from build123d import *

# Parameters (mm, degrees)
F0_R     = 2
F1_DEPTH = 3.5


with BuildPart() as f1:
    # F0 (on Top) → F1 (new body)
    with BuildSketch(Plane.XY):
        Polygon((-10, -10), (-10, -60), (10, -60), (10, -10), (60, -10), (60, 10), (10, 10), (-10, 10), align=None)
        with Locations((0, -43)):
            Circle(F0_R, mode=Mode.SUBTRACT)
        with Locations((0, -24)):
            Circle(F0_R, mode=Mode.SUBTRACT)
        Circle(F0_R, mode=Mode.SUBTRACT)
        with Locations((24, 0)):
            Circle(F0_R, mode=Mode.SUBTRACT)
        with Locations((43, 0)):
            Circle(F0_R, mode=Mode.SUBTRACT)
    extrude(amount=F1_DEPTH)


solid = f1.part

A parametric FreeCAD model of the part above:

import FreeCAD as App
import Part
import Sketcher

V = App.Vector
Q = App.Units.Quantity

doc = App.newDocument("Part")
body = doc.addObject("PartDesign::Body", "Body")

# Sketch on XY plane
sketch1 = doc.addObject("Sketcher::SketchObject", "Sketch")
body.addObject(sketch1)
sketch1.AttachmentSupport = (doc.XY_Plane, [""])
sketch1.MapMode = "FlatFace"
sketch1.addGeometry(Part.LineSegment(V(-10, -60, 0), V(10, -60, 0)), False)
sketch1.addGeometry(Part.LineSegment(V(10, -60, 0), V(10, -10, 0)), False)
sketch1.addGeometry(Part.LineSegment(V(10, -10, 0), V(60, -10, 0)), False)
sketch1.addGeometry(Part.LineSegment(V(60, -10, 0), V(60, 10, 0)), False)
sketch1.addGeometry(Part.LineSegment(V(60, 10, 0), V(-10, 10, 0)), False)
sketch1.addGeometry(Part.LineSegment(V(-10, 10, 0), V(-10, -60, 0)), False)
sketch1.addGeometry(Part.Circle(V(0, -43, 0), V(0, 0, 1), 2), False)
sketch1.addGeometry(Part.Circle(V(0, -24, 0), V(0, 0, 1), 2), False)
sketch1.addGeometry(Part.Circle(V(0, 0, 0), V(0, 0, 1), 2), False)
sketch1.addGeometry(Part.Circle(V(24, 0, 0), V(0, 0, 1), 2), False)
sketch1.addGeometry(Part.Circle(V(43, 0, 0), V(0, 0, 1), 2), False)
sketch1.addConstraint(Sketcher.Constraint("Coincident", 0, 2, 1, 1))
sketch1.addConstraint(Sketcher.Constraint("Coincident", 1, 2, 2, 1))
sketch1.addConstraint(Sketcher.Constraint("Coincident", 2, 2, 3, 1))
sketch1.addConstraint(Sketcher.Constraint("Coincident", 3, 2, 4, 1))
sketch1.addConstraint(Sketcher.Constraint("Coincident", 4, 2, 5, 1))
sketch1.addConstraint(Sketcher.Constraint("Coincident", 5, 2, 0, 1))
sketch1.addConstraint(Sketcher.Constraint("Horizontal", 0))
sketch1.addConstraint(Sketcher.Constraint("Vertical", 1))
sketch1.addConstraint(Sketcher.Constraint("Horizontal", 2))
sketch1.addConstraint(Sketcher.Constraint("Vertical", 3))
sketch1.addConstraint(Sketcher.Constraint("Horizontal", 4))
sketch1.addConstraint(Sketcher.Constraint("Vertical", 5))
sketch1.addConstraint(Sketcher.Constraint("Coincident", 8, 3, -1, 1))
sketch1.addConstraint(Sketcher.Constraint("Equal", 6, 7))
sketch1.addConstraint(Sketcher.Constraint("Equal", 7, 8))
sketch1.addConstraint(Sketcher.Constraint("Equal", 8, 9))
sketch1.addConstraint(Sketcher.Constraint("Equal", 9, 10))
sketch1.addConstraint(Sketcher.Constraint("Symmetric", 1, 2, 4, 2, -1, 1))
sketch1.addConstraint(Sketcher.Constraint("PointOnObject", 6, 3, -2))
sketch1.addConstraint(Sketcher.Constraint("PointOnObject", 7, 3, -2))
sketch1.addConstraint(Sketcher.Constraint("PointOnObject", 9, 3, -1))
sketch1.addConstraint(Sketcher.Constraint("PointOnObject", 10, 3, -1))
sketch1.addConstraint(Sketcher.Constraint("Equal", 2, 1))
sketch1.addConstraint(Sketcher.Constraint("Equal", 0, 3))
sketch1.addConstraint(Sketcher.Constraint("Diameter", 6, Q("4 mm")))
sketch1.addConstraint(Sketcher.Constraint("DistanceX", 0, 1, 0, 2, Q("20 mm")))
sketch1.addConstraint(Sketcher.Constraint("DistanceX", 2, 1, 2, 2, Q("50 mm")))
sketch1.addConstraint(Sketcher.Constraint("DistanceY", 6, 3, -1, 1, Q("43 mm")))
sketch1.addConstraint(Sketcher.Constraint("DistanceY", 7, 3, -1, 1, Q("24 mm")))
sketch1.addConstraint(Sketcher.Constraint("DistanceX", -1, 1, 9, 3, Q("24 mm")))
sketch1.addConstraint(Sketcher.Constraint("DistanceX", -1, 1, 10, 3, Q("43 mm")))
pad1 = doc.addObject("PartDesign::Pad", "Pad")
body.addObject(pad1)
pad1.Profile = sketch1
pad1.Length = 3.5

doc.recompute()
